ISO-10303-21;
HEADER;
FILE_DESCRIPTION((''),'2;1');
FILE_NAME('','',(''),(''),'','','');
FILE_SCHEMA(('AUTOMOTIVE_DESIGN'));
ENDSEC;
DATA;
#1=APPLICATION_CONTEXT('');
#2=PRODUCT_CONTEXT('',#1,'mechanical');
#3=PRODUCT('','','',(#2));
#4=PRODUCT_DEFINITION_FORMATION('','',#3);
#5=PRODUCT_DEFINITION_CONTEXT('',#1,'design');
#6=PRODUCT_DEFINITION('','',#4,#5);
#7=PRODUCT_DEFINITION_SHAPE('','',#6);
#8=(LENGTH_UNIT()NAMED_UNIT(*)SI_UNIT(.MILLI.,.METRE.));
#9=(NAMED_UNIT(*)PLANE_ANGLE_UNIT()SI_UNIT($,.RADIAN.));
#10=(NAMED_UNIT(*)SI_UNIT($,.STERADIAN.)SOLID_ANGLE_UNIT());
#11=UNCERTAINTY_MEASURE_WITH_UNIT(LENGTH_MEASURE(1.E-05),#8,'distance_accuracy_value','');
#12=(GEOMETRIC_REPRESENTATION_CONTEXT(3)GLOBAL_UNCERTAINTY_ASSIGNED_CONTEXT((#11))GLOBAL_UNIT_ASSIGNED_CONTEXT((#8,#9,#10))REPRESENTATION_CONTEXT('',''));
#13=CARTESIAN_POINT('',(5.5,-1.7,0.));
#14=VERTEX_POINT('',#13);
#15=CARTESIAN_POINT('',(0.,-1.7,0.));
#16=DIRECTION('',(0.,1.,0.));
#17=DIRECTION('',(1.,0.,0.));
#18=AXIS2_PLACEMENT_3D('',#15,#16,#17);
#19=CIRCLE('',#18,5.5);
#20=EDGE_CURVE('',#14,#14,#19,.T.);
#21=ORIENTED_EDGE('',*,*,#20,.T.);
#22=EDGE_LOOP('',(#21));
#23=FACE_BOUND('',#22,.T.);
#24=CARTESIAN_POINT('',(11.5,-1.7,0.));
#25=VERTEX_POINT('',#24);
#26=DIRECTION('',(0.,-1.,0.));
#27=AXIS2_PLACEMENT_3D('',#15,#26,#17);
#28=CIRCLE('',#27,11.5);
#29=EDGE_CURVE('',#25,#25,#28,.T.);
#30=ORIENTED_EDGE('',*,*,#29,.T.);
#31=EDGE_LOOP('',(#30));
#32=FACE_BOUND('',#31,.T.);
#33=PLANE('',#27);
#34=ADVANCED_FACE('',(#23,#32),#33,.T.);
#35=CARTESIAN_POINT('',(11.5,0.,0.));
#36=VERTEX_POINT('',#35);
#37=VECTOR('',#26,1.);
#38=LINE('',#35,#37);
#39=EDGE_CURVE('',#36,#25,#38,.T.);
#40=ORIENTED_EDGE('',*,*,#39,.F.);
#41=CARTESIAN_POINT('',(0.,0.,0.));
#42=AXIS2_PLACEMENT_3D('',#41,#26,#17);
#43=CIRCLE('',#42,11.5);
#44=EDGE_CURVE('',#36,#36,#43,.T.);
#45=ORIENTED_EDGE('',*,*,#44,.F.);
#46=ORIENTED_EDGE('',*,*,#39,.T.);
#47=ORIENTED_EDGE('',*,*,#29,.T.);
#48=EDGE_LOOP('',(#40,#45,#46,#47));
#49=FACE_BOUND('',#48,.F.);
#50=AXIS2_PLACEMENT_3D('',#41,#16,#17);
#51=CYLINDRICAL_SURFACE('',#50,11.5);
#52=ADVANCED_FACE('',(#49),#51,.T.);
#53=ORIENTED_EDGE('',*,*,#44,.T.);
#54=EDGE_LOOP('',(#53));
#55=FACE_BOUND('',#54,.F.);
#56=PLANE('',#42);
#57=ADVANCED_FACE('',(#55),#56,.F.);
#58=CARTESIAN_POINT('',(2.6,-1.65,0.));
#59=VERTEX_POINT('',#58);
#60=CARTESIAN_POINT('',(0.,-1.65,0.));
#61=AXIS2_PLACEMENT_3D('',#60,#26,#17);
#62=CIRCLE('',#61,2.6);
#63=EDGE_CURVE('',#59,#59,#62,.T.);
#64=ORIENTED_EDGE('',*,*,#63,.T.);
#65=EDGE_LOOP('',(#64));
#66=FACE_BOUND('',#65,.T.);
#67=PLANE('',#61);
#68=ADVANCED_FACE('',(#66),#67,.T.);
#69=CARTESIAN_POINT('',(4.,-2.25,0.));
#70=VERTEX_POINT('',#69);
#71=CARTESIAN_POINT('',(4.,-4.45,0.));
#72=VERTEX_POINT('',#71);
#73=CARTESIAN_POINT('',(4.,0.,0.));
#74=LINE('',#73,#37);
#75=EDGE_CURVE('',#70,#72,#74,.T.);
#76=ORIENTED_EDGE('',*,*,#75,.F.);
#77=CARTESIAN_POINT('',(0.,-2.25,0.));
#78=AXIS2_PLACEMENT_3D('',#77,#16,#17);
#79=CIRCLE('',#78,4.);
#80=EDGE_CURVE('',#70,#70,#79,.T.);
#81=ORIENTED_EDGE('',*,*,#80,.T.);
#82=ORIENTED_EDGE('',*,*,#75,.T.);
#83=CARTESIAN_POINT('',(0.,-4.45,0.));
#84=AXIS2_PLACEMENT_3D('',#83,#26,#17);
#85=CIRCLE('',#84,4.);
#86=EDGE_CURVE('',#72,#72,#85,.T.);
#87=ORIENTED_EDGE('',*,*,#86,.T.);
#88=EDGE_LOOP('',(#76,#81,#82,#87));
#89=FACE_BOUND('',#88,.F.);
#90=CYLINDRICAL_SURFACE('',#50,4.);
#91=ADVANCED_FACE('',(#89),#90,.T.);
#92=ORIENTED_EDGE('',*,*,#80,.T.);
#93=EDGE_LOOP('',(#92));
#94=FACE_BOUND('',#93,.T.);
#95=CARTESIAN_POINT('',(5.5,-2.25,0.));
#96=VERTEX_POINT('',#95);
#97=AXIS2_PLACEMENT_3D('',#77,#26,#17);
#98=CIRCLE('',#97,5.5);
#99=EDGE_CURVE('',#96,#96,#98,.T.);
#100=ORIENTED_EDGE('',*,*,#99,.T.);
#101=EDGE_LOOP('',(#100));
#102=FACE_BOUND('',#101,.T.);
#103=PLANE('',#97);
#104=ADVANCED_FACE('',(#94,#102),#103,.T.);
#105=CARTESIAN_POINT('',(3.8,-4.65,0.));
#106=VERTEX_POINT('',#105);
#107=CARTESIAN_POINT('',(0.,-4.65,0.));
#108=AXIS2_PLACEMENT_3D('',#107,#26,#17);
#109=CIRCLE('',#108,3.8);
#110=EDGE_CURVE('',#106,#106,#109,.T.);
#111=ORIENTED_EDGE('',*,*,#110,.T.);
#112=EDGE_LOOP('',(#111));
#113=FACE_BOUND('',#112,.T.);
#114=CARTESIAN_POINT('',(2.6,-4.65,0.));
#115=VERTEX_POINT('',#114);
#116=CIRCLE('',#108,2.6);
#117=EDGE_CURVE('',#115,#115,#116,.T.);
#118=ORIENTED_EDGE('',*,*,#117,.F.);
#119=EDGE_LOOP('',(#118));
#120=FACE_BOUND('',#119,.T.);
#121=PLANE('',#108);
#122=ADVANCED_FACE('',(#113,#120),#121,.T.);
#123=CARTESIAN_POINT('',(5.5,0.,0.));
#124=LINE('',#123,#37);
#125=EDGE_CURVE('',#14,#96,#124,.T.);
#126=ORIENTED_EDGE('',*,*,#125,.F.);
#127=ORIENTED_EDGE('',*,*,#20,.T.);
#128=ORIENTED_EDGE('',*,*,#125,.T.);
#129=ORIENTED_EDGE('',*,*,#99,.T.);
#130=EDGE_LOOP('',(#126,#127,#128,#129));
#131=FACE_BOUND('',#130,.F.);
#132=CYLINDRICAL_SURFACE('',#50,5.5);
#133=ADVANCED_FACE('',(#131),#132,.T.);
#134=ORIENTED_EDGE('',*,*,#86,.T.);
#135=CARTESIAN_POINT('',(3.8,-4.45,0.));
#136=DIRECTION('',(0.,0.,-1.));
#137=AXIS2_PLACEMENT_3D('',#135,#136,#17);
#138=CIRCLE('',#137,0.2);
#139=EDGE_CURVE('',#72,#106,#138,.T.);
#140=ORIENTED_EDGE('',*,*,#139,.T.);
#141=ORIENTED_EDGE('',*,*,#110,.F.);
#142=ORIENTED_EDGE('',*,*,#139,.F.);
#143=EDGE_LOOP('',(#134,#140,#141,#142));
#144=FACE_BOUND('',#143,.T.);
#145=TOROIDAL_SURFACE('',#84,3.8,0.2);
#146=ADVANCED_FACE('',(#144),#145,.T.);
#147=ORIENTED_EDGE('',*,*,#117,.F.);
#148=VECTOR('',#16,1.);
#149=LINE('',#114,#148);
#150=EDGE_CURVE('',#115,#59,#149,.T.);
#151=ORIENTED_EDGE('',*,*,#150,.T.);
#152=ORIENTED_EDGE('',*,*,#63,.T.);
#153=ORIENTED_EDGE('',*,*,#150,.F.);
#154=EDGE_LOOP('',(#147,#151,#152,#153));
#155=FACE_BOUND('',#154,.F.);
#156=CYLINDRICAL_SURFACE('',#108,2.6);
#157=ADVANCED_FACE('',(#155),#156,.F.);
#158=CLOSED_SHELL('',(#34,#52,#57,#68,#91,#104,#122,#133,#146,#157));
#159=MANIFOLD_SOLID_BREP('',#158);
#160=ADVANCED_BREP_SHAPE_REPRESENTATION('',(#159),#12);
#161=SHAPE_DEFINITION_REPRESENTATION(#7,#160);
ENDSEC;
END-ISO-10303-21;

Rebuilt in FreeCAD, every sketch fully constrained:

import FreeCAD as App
import Part
import Sketcher


def edges_at(feature, points):
    """Names of the edges that pass closest to the given points."""
    edges = feature.Shape.Edges
    near = lambda p: min(range(len(edges)), key=lambda i: edges[i].distToShape(Part.Vertex(*p))[0])
    return sorted({f"Edge{near(p) + 1}" for p in points})

doc = App.newDocument("Part")
body = doc.addObject("PartDesign::Body", "Body")

sketch1 = body.newObject("Sketcher::SketchObject", "Sketch")
sketch1.AttachmentSupport = (doc.getObject("XZ_Plane"), [""])
sketch1.MapMode = "FlatFace"
sketch1.addGeometry(Part.Circle(App.Vector(0, 0, 0), App.Vector(0, 0, 1), 11.5), False)
sketch1.addConstraint(Sketcher.Constraint("Coincident", 0, 3, -1, 1))
sketch1.addConstraint(Sketcher.Constraint("Diameter", 0, 23.0))
pad1 = body.newObject("PartDesign::Pad", "Pad")
pad1.Profile = sketch1
pad1.Length = 1.7

sketch2 = body.newObject("Sketcher::SketchObject", "Sketch001")
sketch2.AttachmentSupport = (doc.getObject("XZ_Plane"), [""])
sketch2.MapMode = "FlatFace"
sketch2.addGeometry(Part.Circle(App.Vector(0, 0, 0), App.Vector(0, 0, 1), 5.5), False)
sketch2.addConstraint(Sketcher.Constraint("Coincident", 0, 3, -1, 1))
sketch2.addConstraint(Sketcher.Constraint("Diameter", 0, 11.0))
pad2 = body.newObject("PartDesign::Pad", "Pad001")
pad2.Profile = sketch2
pad2.Length = 2.25

sketch3 = body.newObject("Sketcher::SketchObject", "Sketch002")
sketch3.AttachmentSupport = (doc.getObject("XZ_Plane"), [""])
sketch3.MapMode = "FlatFace"
sketch3.addGeometry(Part.Circle(App.Vector(0, 0, 0), App.Vector(0, 0, 1), 4), False)
sketch3.addConstraint(Sketcher.Constraint("Coincident", 0, 3, -1, 1))
sketch3.addConstraint(Sketcher.Constraint("Diameter", 0, 8.0))
pad3 = body.newObject("PartDesign::Pad", "Pad002")
pad3.Profile = sketch3
pad3.Length = 4.65
doc.recompute()

fillet = body.newObject("PartDesign::Fillet", "Fillet")
fillet.Base = (pad3, edges_at(pad3, [(-4, -4.65, 0)]))
fillet.Radius = 0.2

sketch4 = body.newObject("Sketcher::SketchObject", "Sketch003")
sketch4.AttachmentSupport = (doc.getObject("XZ_Plane"), [""])
sketch4.MapMode = "FlatFace"
sketch4.AttachmentOffset = App.Placement(App.Vector(0, 0, 4.65), App.Rotation())
sketch4.addGeometry(Part.Circle(App.Vector(0, 0, 0), App.Vector(0, 0, 1), 2.6), False)
sketch4.addConstraint(Sketcher.Constraint("Coincident", 0, 3, -1, 1))
sketch4.addConstraint(Sketcher.Constraint("Diameter", 0, 5.2))
pocket1 = body.newObject("PartDesign::Pocket", "Pocket")
pocket1.Profile = sketch4
pocket1.Length = 3

doc.recompute()
